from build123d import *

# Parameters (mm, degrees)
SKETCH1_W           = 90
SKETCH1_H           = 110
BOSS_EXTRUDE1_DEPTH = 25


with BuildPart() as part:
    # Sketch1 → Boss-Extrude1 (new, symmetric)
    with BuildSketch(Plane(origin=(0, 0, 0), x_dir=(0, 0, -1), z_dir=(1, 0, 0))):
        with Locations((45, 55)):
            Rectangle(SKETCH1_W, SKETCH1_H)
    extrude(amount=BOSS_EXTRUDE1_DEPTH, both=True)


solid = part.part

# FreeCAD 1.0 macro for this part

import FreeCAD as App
import Part
import Sketcher
from FreeCAD import Vector


def add_polygon(sketch, points):
    """Adds a closed chain of lines whose ends are joined by coincident constraints."""
    first, n = sketch.GeometryCount, len(points)
    for a, b in zip(points, points[1:] + points[:1]):
        sketch.addGeometry(Part.LineSegment(App.Vector(*a, 0), App.Vector(*b, 0)), False)
    for i in range(n):
        sketch.addConstraint(Sketcher.Constraint("Coincident", first + i, 2, first + (i + 1) % n, 1))

doc = App.newDocument("Part")
params = doc.addObject("Spreadsheet::Sheet", "Params")
for row, (alias, value) in enumerate([
    ("sketch1_width", "110 mm"),
    ("sketch1_height", "90 mm"),
    ("pad1_length", "50 mm"),
], start=1):
    params.set(f"A{row}", alias)
    params.set(f"B{row}", "=" + value)
    params.setAlias(f"B{row}", alias)

body = doc.addObject("PartDesign::Body", "Body")

# Sketch on YZ plane
sketch1 = body.newObject("Sketcher::SketchObject", "Sketch")
sketch1.AttachmentSupport = (doc.getObject("YZ_Plane"), [""])
sketch1.MapMode = "FlatFace"
add_polygon(sketch1, [(110, 0), (0, 0), (0, -90), (110, -90)])  # lines 0-3
sketch1.addConstraint(Sketcher.Constraint("Horizontal", 0))
sketch1.addConstraint(Sketcher.Constraint("Vertical", 1))
sketch1.addConstraint(Sketcher.Constraint("Horizontal", 2))
sketch1.addConstraint(Sketcher.Constraint("Vertical", 3))
sketch1.addConstraint(Sketcher.Constraint("Coincident", 0, 2, -1, 1))
sketch1.addConstraint(Sketcher.Constraint("DistanceX", 0, 2, 0, 1, 110.0))
sketch1.addConstraint(Sketcher.Constraint("DistanceY", 1, 2, 1, 1, 90.0))
sketch1.setExpression("Constraints[9]", "Params.sketch1_width")
sketch1.setExpression("Constraints[10]", "Params.sketch1_height")
pad1 = body.newObject("PartDesign::Pad", "Pad")
pad1.Profile = sketch1
pad1.setExpression("Length", "Params.pad1_length")
pad1.Midplane = True

doc.recompute()
